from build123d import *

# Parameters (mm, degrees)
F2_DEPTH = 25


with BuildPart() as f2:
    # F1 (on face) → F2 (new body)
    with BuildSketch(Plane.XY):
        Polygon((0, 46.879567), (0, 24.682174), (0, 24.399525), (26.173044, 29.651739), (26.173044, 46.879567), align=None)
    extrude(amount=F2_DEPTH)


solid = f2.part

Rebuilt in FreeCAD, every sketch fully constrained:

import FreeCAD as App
import Part
import Sketcher
from FreeCAD import Vector


def add_polygon(sketch, points):
    """Adds a closed chain of lines whose ends are joined by coincident constraints."""
    first, n = sketch.GeometryCount, len(points)
    for a, b in zip(points, points[1:] + points[:1]):
        sketch.addGeometry(Part.LineSegment(App.Vector(*a, 0), App.Vector(*b, 0)), False)
    for i in range(n):
        sketch.addConstraint(Sketcher.Constraint("Coincident", first + i, 2, first + (i + 1) % n, 1))

doc = App.newDocument("Part")
body = doc.addObject("PartDesign::Body", "Body")

sketch1 = doc.addObject("Sketcher::SketchObject", "Sketch")
body.addObject(sketch1)
sketch1.AttachmentSupport = (doc.XY_Plane, [""])
sketch1.MapMode = "FlatFace"
add_polygon(sketch1, [(0, 47), (0, 24), (26, 30), (26, 47)])
sketch1.addConstraint([
    Sketcher.Constraint("Vertical", 0),
    Sketcher.Constraint("Vertical", 2),
    Sketcher.Constraint("Horizontal", 3),
    Sketcher.Constraint("PointOnObject", 0, 2, -2),
    Sketcher.Constraint("DistanceY", 2, 1, 2, 2, 17.227828),
    Sketcher.Constraint("Distance", 1, 26.694831),
    Sketcher.Constraint("DistanceX", 3, 2, 3, 1, 26.173044),
    Sketcher.Constraint("DistanceY", -1, 1, 1, 2, 29.651739),
])
pad1 = doc.addObject("PartDesign::Pad", "Pad")
body.addObject(pad1)
pad1.Profile = sketch1
pad1.Length = 25

doc.recompute()
